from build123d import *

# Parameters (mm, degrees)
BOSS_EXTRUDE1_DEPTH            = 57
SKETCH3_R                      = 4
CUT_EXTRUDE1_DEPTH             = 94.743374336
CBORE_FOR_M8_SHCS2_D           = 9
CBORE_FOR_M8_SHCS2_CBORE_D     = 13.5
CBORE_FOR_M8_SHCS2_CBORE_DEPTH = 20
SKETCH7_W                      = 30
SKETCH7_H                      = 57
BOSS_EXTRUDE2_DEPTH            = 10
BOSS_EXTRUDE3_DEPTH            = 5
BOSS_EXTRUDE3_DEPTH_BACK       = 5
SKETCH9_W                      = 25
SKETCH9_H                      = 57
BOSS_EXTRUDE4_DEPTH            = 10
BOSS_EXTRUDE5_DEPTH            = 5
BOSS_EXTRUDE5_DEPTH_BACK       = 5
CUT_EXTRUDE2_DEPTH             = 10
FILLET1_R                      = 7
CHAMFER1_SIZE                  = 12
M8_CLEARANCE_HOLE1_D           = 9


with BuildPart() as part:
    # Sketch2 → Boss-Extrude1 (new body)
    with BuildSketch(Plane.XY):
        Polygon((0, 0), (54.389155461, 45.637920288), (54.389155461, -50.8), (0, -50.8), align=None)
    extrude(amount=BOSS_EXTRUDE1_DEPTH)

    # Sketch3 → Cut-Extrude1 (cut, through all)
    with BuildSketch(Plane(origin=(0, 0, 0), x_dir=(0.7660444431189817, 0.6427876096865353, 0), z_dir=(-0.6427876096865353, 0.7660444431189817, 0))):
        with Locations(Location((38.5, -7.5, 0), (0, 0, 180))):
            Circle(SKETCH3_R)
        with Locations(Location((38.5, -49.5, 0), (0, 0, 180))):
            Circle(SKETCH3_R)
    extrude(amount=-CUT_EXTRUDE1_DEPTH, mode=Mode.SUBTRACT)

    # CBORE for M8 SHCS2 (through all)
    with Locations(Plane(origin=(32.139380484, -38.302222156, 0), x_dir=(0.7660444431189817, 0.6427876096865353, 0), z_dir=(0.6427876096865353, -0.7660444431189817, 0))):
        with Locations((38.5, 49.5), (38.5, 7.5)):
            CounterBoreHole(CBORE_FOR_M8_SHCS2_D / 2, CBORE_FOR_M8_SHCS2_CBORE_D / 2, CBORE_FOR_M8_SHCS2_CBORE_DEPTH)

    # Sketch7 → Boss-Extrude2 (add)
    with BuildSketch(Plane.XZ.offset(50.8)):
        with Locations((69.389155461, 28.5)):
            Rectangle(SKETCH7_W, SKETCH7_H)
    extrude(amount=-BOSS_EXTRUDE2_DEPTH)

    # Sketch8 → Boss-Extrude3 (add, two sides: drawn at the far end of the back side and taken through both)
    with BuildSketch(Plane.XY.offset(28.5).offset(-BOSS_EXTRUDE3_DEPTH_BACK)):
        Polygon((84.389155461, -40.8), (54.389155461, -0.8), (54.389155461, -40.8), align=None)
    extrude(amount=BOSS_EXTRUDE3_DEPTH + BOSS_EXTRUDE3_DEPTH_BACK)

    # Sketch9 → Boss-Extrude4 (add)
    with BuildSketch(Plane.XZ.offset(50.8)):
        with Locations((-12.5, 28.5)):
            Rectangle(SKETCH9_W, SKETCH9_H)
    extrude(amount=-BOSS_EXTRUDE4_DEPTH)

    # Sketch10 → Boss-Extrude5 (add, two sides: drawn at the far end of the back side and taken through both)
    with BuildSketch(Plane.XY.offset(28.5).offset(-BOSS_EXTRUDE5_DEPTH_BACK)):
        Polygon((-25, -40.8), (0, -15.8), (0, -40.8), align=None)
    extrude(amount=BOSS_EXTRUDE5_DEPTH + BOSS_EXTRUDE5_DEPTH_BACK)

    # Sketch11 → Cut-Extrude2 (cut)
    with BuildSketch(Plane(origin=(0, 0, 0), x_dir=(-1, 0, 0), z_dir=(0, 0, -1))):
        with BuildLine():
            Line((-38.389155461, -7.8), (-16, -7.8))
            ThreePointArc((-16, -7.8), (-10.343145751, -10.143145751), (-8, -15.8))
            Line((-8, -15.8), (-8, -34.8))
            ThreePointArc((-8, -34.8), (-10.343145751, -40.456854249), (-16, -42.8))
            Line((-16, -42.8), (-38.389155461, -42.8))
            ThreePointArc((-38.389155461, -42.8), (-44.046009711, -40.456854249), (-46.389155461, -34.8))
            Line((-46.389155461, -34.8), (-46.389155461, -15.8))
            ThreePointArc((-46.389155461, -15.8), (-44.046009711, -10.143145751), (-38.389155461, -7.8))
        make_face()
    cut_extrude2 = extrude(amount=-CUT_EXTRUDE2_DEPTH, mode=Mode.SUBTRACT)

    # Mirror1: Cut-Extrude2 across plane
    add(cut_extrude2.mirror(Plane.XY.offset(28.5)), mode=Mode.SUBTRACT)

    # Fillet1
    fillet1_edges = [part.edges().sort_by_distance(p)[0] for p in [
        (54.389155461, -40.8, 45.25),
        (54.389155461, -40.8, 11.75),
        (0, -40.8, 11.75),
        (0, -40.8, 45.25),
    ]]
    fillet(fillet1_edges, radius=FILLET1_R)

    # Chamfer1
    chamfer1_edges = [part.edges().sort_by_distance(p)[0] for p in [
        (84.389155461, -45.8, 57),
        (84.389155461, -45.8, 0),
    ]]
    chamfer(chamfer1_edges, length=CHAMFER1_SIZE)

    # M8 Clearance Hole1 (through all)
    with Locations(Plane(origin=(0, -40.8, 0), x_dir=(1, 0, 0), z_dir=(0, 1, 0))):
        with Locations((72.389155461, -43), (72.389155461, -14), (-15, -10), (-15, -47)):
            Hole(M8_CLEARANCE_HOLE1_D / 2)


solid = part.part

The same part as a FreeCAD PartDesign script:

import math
import FreeCAD as App
import Part
import Sketcher

V = App.Vector
Q = App.Units.Quantity


def edges_at(feature, points):
    """Names of the edges that pass closest to the given points."""
    edges = feature.Shape.Edges
    near = lambda p: min(range(len(edges)), key=lambda i: edges[i].distToShape(Part.Vertex(*p))[0])
    return sorted({f"Edge{near(p) + 1}" for p in points})

doc = App.newDocument("Part")
params = doc.addObject("Spreadsheet::Sheet", "Params")
for row, (alias, value) in enumerate([
    ("sketch1_length", "71 mm"),
    ("sketch1_height", "50.8 mm"),
    ("pad1_length", "57 mm"),
    ("sketch2_diameter", "8 mm"),
    ("sketch3_diameter", "9 mm"),
    ("hole_diameter", "9 mm"),
    ("hole_cbore_diameter", "13.5 mm"),
    ("hole_cbore_depth", "20 mm"),
    ("sketch4_width", "30 mm"),
    ("sketch4_height", "57 mm"),
    ("pad2_length", "10 mm"),
    ("sketch5_width", "30 mm"),
    ("sketch5_height", "40 mm"),
    ("pad3_length", "5 mm"),
    ("pad3_length2", "5 mm"),
    ("sketch6_width", "25 mm"),
    ("sketch6_height", "57 mm"),
    ("pad4_length", "10 mm"),
    ("sketch7_width", "25 mm"),
    ("pad5_length", "5 mm"),
    ("pad5_length2", "5 mm"),
    ("sketch8_radius", "8 mm"),
    ("sketch8_height", "19 mm"),
    ("pocket2_length", "10 mm"),
    ("fillet_radius", "7 mm"),
    ("chamfer_size", "12 mm"),
    ("sketch9_diameter", "9 mm"),
    ("hole2_diameter", "9 mm"),
], start=1):
    params.set(f"A{row}", alias)
    params.set(f"B{row}", "=" + value)
    params.setAlias(f"B{row}", alias)

body = doc.addObject("PartDesign::Body", "Body")

sketch1 = body.newObject("Sketcher::SketchObject", "Sketch")
sketch1.AttachmentSupport = (doc.getObject("XY_Plane"), [""])
sketch1.MapMode = "FlatFace"
sketch1.addGeometry(Part.LineSegment(V(54.389155, 45.63792, 0), V(0, 0, 0)), False)
sketch1.addGeometry(Part.LineSegment(V(0, 0, 0), V(0, -50.8, 0)), False)
sketch1.addGeometry(Part.LineSegment(V(0, -50.8, 0), V(54.389155, -50.8, 0)), False)
sketch1.addGeometry(Part.LineSegment(V(54.389155, -50.8, 0), V(54.389155, 45.63792, 0)), False)
sketch1.addConstraint(Sketcher.Constraint("Coincident", 0, 2, 1, 1))
sketch1.addConstraint(Sketcher.Constraint("Coincident", 1, 2, 2, 1))
sketch1.addConstraint(Sketcher.Constraint("Coincident", 2, 2, 3, 1))
sketch1.addConstraint(Sketcher.Constraint("Coincident", 3, 2, 0, 1))
sketch1.addConstraint(Sketcher.Constraint("Vertical", 1))
sketch1.addConstraint(Sketcher.Constraint("Horizontal", 2))
sketch1.addConstraint(Sketcher.Constraint("Vertical", 3))
sketch1.addConstraint(Sketcher.Constraint("Coincident", 0, 2, -1, 1))
sketch1.addConstraint(Sketcher.Constraint("Angle", 0, Q("-140 deg")))
sketch1.addConstraint(Sketcher.Constraint("Distance", 0, Q("71 mm")))
sketch1.addConstraint(Sketcher.Constraint("DistanceY", 1, 2, 1, 1, Q("50.8 mm")))
sketch1.setExpression("Constraints[9]", "Params.sketch1_length")
sketch1.setExpression("Constraints[10]", "Params.sketch1_height")
pad1 = body.newObject("PartDesign::Pad", "Pad")
pad1.Profile = sketch1
pad1.setExpression("Length", "Params.pad1_length")

sketch2 = body.newObject("Sketcher::SketchObject", "Sketch001")
sketch2.Placement = App.Placement(V(0, 0, 0), App.Rotation(V(0.766044443, 0.64278761, 0), V(0, 0, -1), V(-0.64278761, 0.766044443, 0), "ZXY"))
sketch2.addGeometry(Part.Circle(V(38.5, -7.5, 0), V(0, 0, 1), 4), False)
sketch2.addGeometry(Part.Circle(V(38.5, -49.5, 0), V(0, 0, 1), 4), False)
sketch2.addConstraint(Sketcher.Constraint("Equal", 0, 1))
sketch2.addConstraint(Sketcher.Constraint("Vertical", 0, 3, 1, 3))
sketch2.addConstraint(Sketcher.Constraint("Diameter", 0, Q("8 mm")))
sketch2.addConstraint(Sketcher.Constraint("DistanceY", 1, 3, 0, 3, Q("42 mm")))
sketch2.addConstraint(Sketcher.Constraint("DistanceX", -1, 1, 0, 3, Q("38.5 mm")))
sketch2.addConstraint(Sketcher.Constraint("DistanceY", 0, 3, -1, 1, Q("7.5 mm")))
sketch2.setExpression("Constraints[2]", "Params.sketch2_diameter")
pocket1 = body.newObject("PartDesign::Pocket", "Pocket")
pocket1.Profile = sketch2
pocket1.Type = "ThroughAll"

sketch3 = body.newObject("Sketcher::SketchObject", "Sketch002")
sketch3.Placement = App.Placement(V(32.13938, -38.302222, 0), App.Rotation(V(0.766044443, 0.64278761, 0), V(0, 0, 1), V(0.64278761, -0.766044443, 0), "ZXY"))
sketch3.addGeometry(Part.Circle(V(38.5, 49.5, 0), V(0, 0, 1), 4.5), False)
sketch3.addGeometry(Part.Circle(V(38.5, 7.5, 0), V(0, 0, 1), 4.5), False)
sketch3.addConstraint(Sketcher.Constraint("Equal", 0, 1))
sketch3.addConstraint(Sketcher.Constraint("Vertical", 0, 3, 1, 3))
sketch3.addConstraint(Sketcher.Constraint("Diameter", 0, Q("9 mm")))
sketch3.addConstraint(Sketcher.Constraint("DistanceY", 1, 3, 0, 3, Q("42 mm")))
sketch3.addConstraint(Sketcher.Constraint("DistanceX", -1, 1, 0, 3, Q("38.5 mm")))
sketch3.addConstraint(Sketcher.Constraint("DistanceY", -1, 1, 0, 3, Q("49.5 mm")))
sketch3.setExpression("Constraints[2]", "Params.sketch3_diameter")
doc.recompute()
hole = body.newObject("PartDesign::Hole", "Hole")
hole.Profile = sketch3
hole.ThreadType = "None"
hole.setExpression("Diameter", "Params.hole_diameter")
hole.DepthType = "ThroughAll"
hole.HoleCutType = "Counterbore"
hole.setExpression("HoleCutDiameter", "Params.hole_cbore_diameter")
hole.setExpression("HoleCutDepth", "Params.hole_cbore_depth")

sketch4 = body.newObject("Sketcher::SketchObject", "Sketch003")
sketch4.AttachmentSupport = (doc.getObject("XZ_Plane"), [""])
sketch4.MapMode = "FlatFace"
sketch4.AttachmentOffset = App.Placement(V(0, 0, 50.8), App.Rotation())
sketch4.addGeometry(Part.LineSegment(V(54.389155, 57, 0), V(54.389155, 0, 0)), False)
sketch4.addGeometry(Part.LineSegment(V(54.389155, 0, 0), V(84.389155, 0, 0)), False)
sketch4.addGeometry(Part.LineSegment(V(84.389155, 0, 0), V(84.389155, 57, 0)), False)
sketch4.addGeometry(Part.LineSegment(V(84.389155, 57, 0), V(54.389155, 57, 0)), False)
sketch4.addConstraint(Sketcher.Constraint("Coincident", 0, 2, 1, 1))
sketch4.addConstraint(Sketcher.Constraint("Coincident", 1, 2, 2, 1))
sketch4.addConstraint(Sketcher.Constraint("Coincident", 2, 2, 3, 1))
sketch4.addConstraint(Sketcher.Constraint("Coincident", 3, 2, 0, 1))
sketch4.addConstraint(Sketcher.Constraint("Vertical", 0))
sketch4.addConstraint(Sketcher.Constraint("Horizontal", 1))
sketch4.addConstraint(Sketcher.Constraint("Vertical", 2))
sketch4.addConstraint(Sketcher.Constraint("Horizontal", 3))
sketch4.addConstraint(Sketcher.Constraint("PointOnObject", 0, 2, -1))
sketch4.addConstraint(Sketcher.Constraint("DistanceX", 1, 1, 1, 2, Q("30 mm")))
sketch4.addConstraint(Sketcher.Constraint("DistanceY", 0, 2, 0, 1, Q("57 mm")))
sketch4.addConstraint(Sketcher.Constraint("DistanceX", -1, 1, 0, 2, Q("54.389155 mm")))
sketch4.setExpression("Constraints[9]", "Params.sketch4_width")
sketch4.setExpression("Constraints[10]", "Params.sketch4_height")
pad2 = body.newObject("PartDesign::Pad", "Pad001")
pad2.Profile = sketch4
pad2.setExpression("Length", "Params.pad2_length")
pad2.Reversed = True

sketch5 = body.newObject("Sketcher::SketchObject", "Sketch004")
sketch5.AttachmentSupport = (doc.getObject("XY_Plane"), [""])
sketch5.MapMode = "FlatFace"
sketch5.AttachmentOffset = App.Placement(V(0, 0, 28.5), App.Rotation())
sketch5.addGeometry(Part.LineSegment(V(84.389155, -40.8, 0), V(54.389155, -0.8, 0)), False)
sketch5.addGeometry(Part.LineSegment(V(54.389155, -0.8, 0), V(54.389155, -40.8, 0)), False)
sketch5.addGeometry(Part.LineSegment(V(54.389155, -40.8, 0), V(84.389155, -40.8, 0)), False)
sketch5.addConstraint(Sketcher.Constraint("Coincident", 0, 2, 1, 1))
sketch5.addConstraint(Sketcher.Constraint("Coincident", 1, 2, 2, 1))
sketch5.addConstraint(Sketcher.Constraint("Coincident", 2, 2, 0, 1))
sketch5.addConstraint(Sketcher.Constraint("Vertical", 1))
sketch5.addConstraint(Sketcher.Constraint("Horizontal", 2))
sketch5.addConstraint(Sketcher.Constraint("DistanceX", 2, 1, 2, 2, Q("30 mm")))
sketch5.addConstraint(Sketcher.Constraint("DistanceY", 1, 2, 1, 1, Q("40 mm")))
sketch5.addConstraint(Sketcher.Constraint("DistanceY", 0, 2, -1, 1, Q("0.8 mm")))
sketch5.addConstraint(Sketcher.Constraint("DistanceX", -1, 1, 0, 2, Q("54.389155 mm")))
sketch5.setExpression("Constraints[5]", "Params.sketch5_width")
sketch5.setExpression("Constraints[6]", "Params.sketch5_height")
pad3 = body.newObject("PartDesign::Pad", "Pad002")
pad3.Profile = sketch5
pad3.Type = "TwoLengths"
pad3.setExpression("Length", "Params.pad3_length")
pad3.setExpression("Length2", "Params.pad3_length2")

sketch6 = body.newObject("Sketcher::SketchObject", "Sketch005")
sketch6.AttachmentSupport = (doc.getObject("XZ_Plane"), [""])
sketch6.MapMode = "FlatFace"
sketch6.AttachmentOffset = App.Placement(V(0, 0, 50.8), App.Rotation())
sketch6.addGeometry(Part.LineSegment(V(-25, 57, 0), V(-25, 0, 0)), False)
sketch6.addGeometry(Part.LineSegment(V(-25, 0, 0), V(0, 0, 0)), False)
sketch6.addGeometry(Part.LineSegment(V(0, 0, 0), V(0, 57, 0)), False)
sketch6.addGeometry(Part.LineSegment(V(0, 57, 0), V(-25, 57, 0)), False)
sketch6.addConstraint(Sketcher.Constraint("Coincident", 0, 2, 1, 1))
sketch6.addConstraint(Sketcher.Constraint("Coincident", 1, 2, 2, 1))
sketch6.addConstraint(Sketcher.Constraint("Coincident", 2, 2, 3, 1))
sketch6.addConstraint(Sketcher.Constraint("Coincident", 3, 2, 0, 1))
sketch6.addConstraint(Sketcher.Constraint("Vertical", 0))
sketch6.addConstraint(Sketcher.Constraint("Horizontal", 1))
sketch6.addConstraint(Sketcher.Constraint("Vertical", 2))
sketch6.addConstraint(Sketcher.Constraint("Horizontal", 3))
sketch6.addConstraint(Sketcher.Constraint("Coincident", 1, 2, -1, 1))
sketch6.addConstraint(Sketcher.Constraint("DistanceX", 1, 1, 1, 2, Q("25 mm")))
sketch6.addConstraint(Sketcher.Constraint("DistanceY", 0, 2, 0, 1, Q("57 mm")))
sketch6.setExpression("Constraints[9]", "Params.sketch6_width")
sketch6.setExpression("Constraints[10]", "Params.sketch6_height")
pad4 = body.newObject("PartDesign::Pad", "Pad003")
pad4.Profile = sketch6
pad4.setExpression("Length", "Params.pad4_length")
pad4.Reversed = True

sketch7 = body.newObject("Sketcher::SketchObject", "Sketch006")
sketch7.AttachmentSupport = (doc.getObject("XY_Plane"), [""])
sketch7.MapMode = "FlatFace"
sketch7.AttachmentOffset = App.Placement(V(0, 0, 28.5), App.Rotation())
sketch7.addGeometry(Part.LineSegment(V(0, -15.8, 0), V(-25, -40.8, 0)), False)
sketch7.addGeometry(Part.LineSegment(V(-25, -40.8, 0), V(0, -40.8, 0)), False)
sketch7.addGeometry(Part.LineSegment(V(0, -40.8, 0), V(0, -15.8, 0)), False)
sketch7.addConstraint(Sketcher.Constraint("Coincident", 0, 2, 1, 1))
sketch7.addConstraint(Sketcher.Constraint("Coincident", 1, 2, 2, 1))
sketch7.addConstraint(Sketcher.Constraint("Coincident", 2, 2, 0, 1))
sketch7.addConstraint(Sketcher.Constraint("Horizontal", 1))
sketch7.addConstraint(Sketcher.Constraint("Vertical", 2))
sketch7.addConstraint(Sketcher.Constraint("PointOnObject", 1, 2, -2))
sketch7.addConstraint(Sketcher.Constraint("Equal", 1, 2))
sketch7.addConstraint(Sketcher.Constraint("DistanceX", 1, 1, 1, 2, Q("25 mm")))
sketch7.addConstraint(Sketcher.Constraint("DistanceY", 0, 2, -1, 1, Q("40.8 mm")))
sketch7.setExpression("Constraints[7]", "Params.sketch7_width")
pad5 = body.newObject("PartDesign::Pad", "Pad004")
pad5.Profile = sketch7
pad5.Type = "TwoLengths"
pad5.setExpression("Length", "Params.pad5_length")
pad5.setExpression("Length2", "Params.pad5_length2")

sketch8 = body.newObject("Sketcher::SketchObject", "Sketch007")
sketch8.AttachmentSupport = (doc.getObject("XY_Plane"), [""])
sketch8.MapMode = "FlatFace"
sketch8.addGeometry(Part.LineSegment(V(16, -7.8, 0), V(38.389155, -7.8, 0)), False)
sketch8.addGeometry(Part.ArcOfCircle(Part.Circle(V(38.389155, -15.8, 0), V(0, 0, 1), 8), math.radians(0), math.radians(90)), False)
sketch8.addGeometry(Part.LineSegment(V(46.389155, -15.8, 0), V(46.389155, -34.8, 0)), False)
sketch8.addGeometry(Part.ArcOfCircle(Part.Circle(V(38.389155, -34.8, 0), V(0, 0, 1), 8), math.radians(-90), math.radians(0)), False)
sketch8.addGeometry(Part.LineSegment(V(38.389155, -42.8, 0), V(16, -42.8, 0)), False)
sketch8.addGeometry(Part.ArcOfCircle(Part.Circle(V(16, -34.8, 0), V(0, 0, 1), 8), math.radians(-180), math.radians(-90)), False)
sketch8.addGeometry(Part.LineSegment(V(8, -34.8, 0), V(8, -15.8, 0)), False)
sketch8.addGeometry(Part.ArcOfCircle(Part.Circle(V(16, -15.8, 0), V(0, 0, 1), 8), math.radians(90), math.radians(180)), False)
sketch8.addConstraint(Sketcher.Constraint("Tangent", 0, 2, 1, 2))
sketch8.addConstraint(Sketcher.Constraint("Tangent", 1, 1, 2, 1))
sketch8.addConstraint(Sketcher.Constraint("Tangent", 2, 2, 3, 2))
sketch8.addConstraint(Sketcher.Constraint("Tangent", 3, 1, 4, 1))
sketch8.addConstraint(Sketcher.Constraint("Tangent", 4, 2, 5, 2))
sketch8.addConstraint(Sketcher.Constraint("Tangent", 5, 1, 6, 1))
sketch8.addConstraint(Sketcher.Constraint("Tangent", 6, 2, 7, 2))
sketch8.addConstraint(Sketcher.Constraint("Tangent", 7, 1, 0, 1))
sketch8.addConstraint(Sketcher.Constraint("Horizontal", 0))
sketch8.addConstraint(Sketcher.Constraint("Vertical", 2))
sketch8.addConstraint(Sketcher.Constraint("Horizontal", 4))
sketch8.addConstraint(Sketcher.Constraint("Vertical", 6))
sketch8.addConstraint(Sketcher.Constraint("Equal", 1, 3))
sketch8.addConstraint(Sketcher.Constraint("Equal", 3, 5))
sketch8.addConstraint(Sketcher.Constraint("Equal", 5, 7))
sketch8.addConstraint(Sketcher.Constraint("Radius", 1, Q("8 mm")))
sketch8.addConstraint(Sketcher.Constraint("DistanceY", 2, 2, 2, 1, Q("19 mm")))
sketch8.addConstraint(Sketcher.Constraint("DistanceX", -1, 1, 5, 3, Q("16 mm")))
sketch8.addConstraint(Sketcher.Constraint("DistanceY", 1, 3, -1, 1, Q("15.8 mm")))
sketch8.addConstraint(Sketcher.Constraint("DistanceX", 0, 1, 0, 2, Q("22.389155 mm")))
sketch8.setExpression("Constraints[15]", "Params.sketch8_radius")
sketch8.setExpression("Constraints[16]", "Params.sketch8_height")
pocket2 = body.newObject("PartDesign::Pocket", "Pocket001")
pocket2.Profile = sketch8
pocket2.setExpression("Length", "Params.pocket2_length")
pocket2.Reversed = True
doc.recompute()

datumplane = body.newObject("PartDesign::Plane", "DatumPlane")
datumplane.AttachmentSupport = (doc.getObject("XY_Plane"), [""])
datumplane.MapMode = "FlatFace"
datumplane.AttachmentOffset = App.Placement(V(0, 0, 28.5), App.Rotation())
mirrored = body.newObject("PartDesign::Mirrored", "Mirrored")
mirrored.Originals = [pocket2]
mirrored.MirrorPlane = (datumplane, [""])
body.Tip = mirrored
doc.recompute()

fillet = body.newObject("PartDesign::Fillet", "Fillet")
fillet.Base = (mirrored, edges_at(mirrored, [
    (54.389, -40.8, 45.25),
    (54.389, -40.8, 11.75),
    (0, -40.8, 11.75),
    (0, -40.8, 45.25),
]))
fillet.setExpression("Radius", "Params.fillet_radius")
doc.recompute()

chamfer = body.newObject("PartDesign::Chamfer", "Chamfer")
chamfer.Base = (fillet, edges_at(fillet, [(84.389, -45.8, 57), (84.389, -45.8, 0)]))
chamfer.setExpression("Size", "Params.chamfer_size")

sketch9 = body.newObject("Sketcher::SketchObject", "Sketch008")
sketch9.AttachmentSupport = (doc.getObject("XZ_Plane"), [""])
sketch9.MapMode = "FlatFace"
sketch9.AttachmentOffset = App.Placement(V(0, 0, 40.8), App.Rotation())
sketch9.addGeometry(Part.Circle(V(72.389155, 43, 0), V(0, 0, 1), 4.5), False)
sketch9.addGeometry(Part.Circle(V(72.389155, 14, 0), V(0, 0, 1), 4.5), False)
sketch9.addGeometry(Part.Circle(V(-15, 10, 0), V(0, 0, 1), 4.5), False)
sketch9.addGeometry(Part.Circle(V(-15, 47, 0), V(0, 0, 1), 4.5), False)
sketch9.addConstraint(Sketcher.Constraint("Equal", 0, 1))
sketch9.addConstraint(Sketcher.Constraint("Equal", 1, 2))
sketch9.addConstraint(Sketcher.Constraint("Equal", 2, 3))
sketch9.addConstraint(Sketcher.Constraint("Vertical", 0, 3, 1, 3))
sketch9.addConstraint(Sketcher.Constraint("Vertical", 2, 3, 3, 3))
sketch9.addConstraint(Sketcher.Constraint("Diameter", 0, Q("9 mm")))
sketch9.addConstraint(Sketcher.Constraint("DistanceY", -1, 1, 0, 3, Q("43 mm")))
sketch9.addConstraint(Sketcher.Constraint("DistanceY", -1, 1, 1, 3, Q("14 mm")))
sketch9.addConstraint(Sketcher.Constraint("DistanceX", 2, 3, -1, 1, Q("15 mm")))
sketch9.addConstraint(Sketcher.Constraint("DistanceY", -1, 1, 2, 3, Q("10 mm")))
sketch9.addConstraint(Sketcher.Constraint("DistanceY", -1, 1, 3, 3, Q("47 mm")))
sketch9.addConstraint(Sketcher.Constraint("DistanceX", -1, 1, 0, 3, Q("72.389155 mm")))
sketch9.setExpression("Constraints[5]", "Params.sketch9_diameter")
doc.recompute()
hole2 = body.newObject("PartDesign::Hole", "Hole001")
hole2.Profile = sketch9
hole2.ThreadType = "None"
hole2.setExpression("Diameter", "Params.hole2_diameter")
hole2.DepthType = "ThroughAll"
hole2.Reversed = True

doc.recompute()
